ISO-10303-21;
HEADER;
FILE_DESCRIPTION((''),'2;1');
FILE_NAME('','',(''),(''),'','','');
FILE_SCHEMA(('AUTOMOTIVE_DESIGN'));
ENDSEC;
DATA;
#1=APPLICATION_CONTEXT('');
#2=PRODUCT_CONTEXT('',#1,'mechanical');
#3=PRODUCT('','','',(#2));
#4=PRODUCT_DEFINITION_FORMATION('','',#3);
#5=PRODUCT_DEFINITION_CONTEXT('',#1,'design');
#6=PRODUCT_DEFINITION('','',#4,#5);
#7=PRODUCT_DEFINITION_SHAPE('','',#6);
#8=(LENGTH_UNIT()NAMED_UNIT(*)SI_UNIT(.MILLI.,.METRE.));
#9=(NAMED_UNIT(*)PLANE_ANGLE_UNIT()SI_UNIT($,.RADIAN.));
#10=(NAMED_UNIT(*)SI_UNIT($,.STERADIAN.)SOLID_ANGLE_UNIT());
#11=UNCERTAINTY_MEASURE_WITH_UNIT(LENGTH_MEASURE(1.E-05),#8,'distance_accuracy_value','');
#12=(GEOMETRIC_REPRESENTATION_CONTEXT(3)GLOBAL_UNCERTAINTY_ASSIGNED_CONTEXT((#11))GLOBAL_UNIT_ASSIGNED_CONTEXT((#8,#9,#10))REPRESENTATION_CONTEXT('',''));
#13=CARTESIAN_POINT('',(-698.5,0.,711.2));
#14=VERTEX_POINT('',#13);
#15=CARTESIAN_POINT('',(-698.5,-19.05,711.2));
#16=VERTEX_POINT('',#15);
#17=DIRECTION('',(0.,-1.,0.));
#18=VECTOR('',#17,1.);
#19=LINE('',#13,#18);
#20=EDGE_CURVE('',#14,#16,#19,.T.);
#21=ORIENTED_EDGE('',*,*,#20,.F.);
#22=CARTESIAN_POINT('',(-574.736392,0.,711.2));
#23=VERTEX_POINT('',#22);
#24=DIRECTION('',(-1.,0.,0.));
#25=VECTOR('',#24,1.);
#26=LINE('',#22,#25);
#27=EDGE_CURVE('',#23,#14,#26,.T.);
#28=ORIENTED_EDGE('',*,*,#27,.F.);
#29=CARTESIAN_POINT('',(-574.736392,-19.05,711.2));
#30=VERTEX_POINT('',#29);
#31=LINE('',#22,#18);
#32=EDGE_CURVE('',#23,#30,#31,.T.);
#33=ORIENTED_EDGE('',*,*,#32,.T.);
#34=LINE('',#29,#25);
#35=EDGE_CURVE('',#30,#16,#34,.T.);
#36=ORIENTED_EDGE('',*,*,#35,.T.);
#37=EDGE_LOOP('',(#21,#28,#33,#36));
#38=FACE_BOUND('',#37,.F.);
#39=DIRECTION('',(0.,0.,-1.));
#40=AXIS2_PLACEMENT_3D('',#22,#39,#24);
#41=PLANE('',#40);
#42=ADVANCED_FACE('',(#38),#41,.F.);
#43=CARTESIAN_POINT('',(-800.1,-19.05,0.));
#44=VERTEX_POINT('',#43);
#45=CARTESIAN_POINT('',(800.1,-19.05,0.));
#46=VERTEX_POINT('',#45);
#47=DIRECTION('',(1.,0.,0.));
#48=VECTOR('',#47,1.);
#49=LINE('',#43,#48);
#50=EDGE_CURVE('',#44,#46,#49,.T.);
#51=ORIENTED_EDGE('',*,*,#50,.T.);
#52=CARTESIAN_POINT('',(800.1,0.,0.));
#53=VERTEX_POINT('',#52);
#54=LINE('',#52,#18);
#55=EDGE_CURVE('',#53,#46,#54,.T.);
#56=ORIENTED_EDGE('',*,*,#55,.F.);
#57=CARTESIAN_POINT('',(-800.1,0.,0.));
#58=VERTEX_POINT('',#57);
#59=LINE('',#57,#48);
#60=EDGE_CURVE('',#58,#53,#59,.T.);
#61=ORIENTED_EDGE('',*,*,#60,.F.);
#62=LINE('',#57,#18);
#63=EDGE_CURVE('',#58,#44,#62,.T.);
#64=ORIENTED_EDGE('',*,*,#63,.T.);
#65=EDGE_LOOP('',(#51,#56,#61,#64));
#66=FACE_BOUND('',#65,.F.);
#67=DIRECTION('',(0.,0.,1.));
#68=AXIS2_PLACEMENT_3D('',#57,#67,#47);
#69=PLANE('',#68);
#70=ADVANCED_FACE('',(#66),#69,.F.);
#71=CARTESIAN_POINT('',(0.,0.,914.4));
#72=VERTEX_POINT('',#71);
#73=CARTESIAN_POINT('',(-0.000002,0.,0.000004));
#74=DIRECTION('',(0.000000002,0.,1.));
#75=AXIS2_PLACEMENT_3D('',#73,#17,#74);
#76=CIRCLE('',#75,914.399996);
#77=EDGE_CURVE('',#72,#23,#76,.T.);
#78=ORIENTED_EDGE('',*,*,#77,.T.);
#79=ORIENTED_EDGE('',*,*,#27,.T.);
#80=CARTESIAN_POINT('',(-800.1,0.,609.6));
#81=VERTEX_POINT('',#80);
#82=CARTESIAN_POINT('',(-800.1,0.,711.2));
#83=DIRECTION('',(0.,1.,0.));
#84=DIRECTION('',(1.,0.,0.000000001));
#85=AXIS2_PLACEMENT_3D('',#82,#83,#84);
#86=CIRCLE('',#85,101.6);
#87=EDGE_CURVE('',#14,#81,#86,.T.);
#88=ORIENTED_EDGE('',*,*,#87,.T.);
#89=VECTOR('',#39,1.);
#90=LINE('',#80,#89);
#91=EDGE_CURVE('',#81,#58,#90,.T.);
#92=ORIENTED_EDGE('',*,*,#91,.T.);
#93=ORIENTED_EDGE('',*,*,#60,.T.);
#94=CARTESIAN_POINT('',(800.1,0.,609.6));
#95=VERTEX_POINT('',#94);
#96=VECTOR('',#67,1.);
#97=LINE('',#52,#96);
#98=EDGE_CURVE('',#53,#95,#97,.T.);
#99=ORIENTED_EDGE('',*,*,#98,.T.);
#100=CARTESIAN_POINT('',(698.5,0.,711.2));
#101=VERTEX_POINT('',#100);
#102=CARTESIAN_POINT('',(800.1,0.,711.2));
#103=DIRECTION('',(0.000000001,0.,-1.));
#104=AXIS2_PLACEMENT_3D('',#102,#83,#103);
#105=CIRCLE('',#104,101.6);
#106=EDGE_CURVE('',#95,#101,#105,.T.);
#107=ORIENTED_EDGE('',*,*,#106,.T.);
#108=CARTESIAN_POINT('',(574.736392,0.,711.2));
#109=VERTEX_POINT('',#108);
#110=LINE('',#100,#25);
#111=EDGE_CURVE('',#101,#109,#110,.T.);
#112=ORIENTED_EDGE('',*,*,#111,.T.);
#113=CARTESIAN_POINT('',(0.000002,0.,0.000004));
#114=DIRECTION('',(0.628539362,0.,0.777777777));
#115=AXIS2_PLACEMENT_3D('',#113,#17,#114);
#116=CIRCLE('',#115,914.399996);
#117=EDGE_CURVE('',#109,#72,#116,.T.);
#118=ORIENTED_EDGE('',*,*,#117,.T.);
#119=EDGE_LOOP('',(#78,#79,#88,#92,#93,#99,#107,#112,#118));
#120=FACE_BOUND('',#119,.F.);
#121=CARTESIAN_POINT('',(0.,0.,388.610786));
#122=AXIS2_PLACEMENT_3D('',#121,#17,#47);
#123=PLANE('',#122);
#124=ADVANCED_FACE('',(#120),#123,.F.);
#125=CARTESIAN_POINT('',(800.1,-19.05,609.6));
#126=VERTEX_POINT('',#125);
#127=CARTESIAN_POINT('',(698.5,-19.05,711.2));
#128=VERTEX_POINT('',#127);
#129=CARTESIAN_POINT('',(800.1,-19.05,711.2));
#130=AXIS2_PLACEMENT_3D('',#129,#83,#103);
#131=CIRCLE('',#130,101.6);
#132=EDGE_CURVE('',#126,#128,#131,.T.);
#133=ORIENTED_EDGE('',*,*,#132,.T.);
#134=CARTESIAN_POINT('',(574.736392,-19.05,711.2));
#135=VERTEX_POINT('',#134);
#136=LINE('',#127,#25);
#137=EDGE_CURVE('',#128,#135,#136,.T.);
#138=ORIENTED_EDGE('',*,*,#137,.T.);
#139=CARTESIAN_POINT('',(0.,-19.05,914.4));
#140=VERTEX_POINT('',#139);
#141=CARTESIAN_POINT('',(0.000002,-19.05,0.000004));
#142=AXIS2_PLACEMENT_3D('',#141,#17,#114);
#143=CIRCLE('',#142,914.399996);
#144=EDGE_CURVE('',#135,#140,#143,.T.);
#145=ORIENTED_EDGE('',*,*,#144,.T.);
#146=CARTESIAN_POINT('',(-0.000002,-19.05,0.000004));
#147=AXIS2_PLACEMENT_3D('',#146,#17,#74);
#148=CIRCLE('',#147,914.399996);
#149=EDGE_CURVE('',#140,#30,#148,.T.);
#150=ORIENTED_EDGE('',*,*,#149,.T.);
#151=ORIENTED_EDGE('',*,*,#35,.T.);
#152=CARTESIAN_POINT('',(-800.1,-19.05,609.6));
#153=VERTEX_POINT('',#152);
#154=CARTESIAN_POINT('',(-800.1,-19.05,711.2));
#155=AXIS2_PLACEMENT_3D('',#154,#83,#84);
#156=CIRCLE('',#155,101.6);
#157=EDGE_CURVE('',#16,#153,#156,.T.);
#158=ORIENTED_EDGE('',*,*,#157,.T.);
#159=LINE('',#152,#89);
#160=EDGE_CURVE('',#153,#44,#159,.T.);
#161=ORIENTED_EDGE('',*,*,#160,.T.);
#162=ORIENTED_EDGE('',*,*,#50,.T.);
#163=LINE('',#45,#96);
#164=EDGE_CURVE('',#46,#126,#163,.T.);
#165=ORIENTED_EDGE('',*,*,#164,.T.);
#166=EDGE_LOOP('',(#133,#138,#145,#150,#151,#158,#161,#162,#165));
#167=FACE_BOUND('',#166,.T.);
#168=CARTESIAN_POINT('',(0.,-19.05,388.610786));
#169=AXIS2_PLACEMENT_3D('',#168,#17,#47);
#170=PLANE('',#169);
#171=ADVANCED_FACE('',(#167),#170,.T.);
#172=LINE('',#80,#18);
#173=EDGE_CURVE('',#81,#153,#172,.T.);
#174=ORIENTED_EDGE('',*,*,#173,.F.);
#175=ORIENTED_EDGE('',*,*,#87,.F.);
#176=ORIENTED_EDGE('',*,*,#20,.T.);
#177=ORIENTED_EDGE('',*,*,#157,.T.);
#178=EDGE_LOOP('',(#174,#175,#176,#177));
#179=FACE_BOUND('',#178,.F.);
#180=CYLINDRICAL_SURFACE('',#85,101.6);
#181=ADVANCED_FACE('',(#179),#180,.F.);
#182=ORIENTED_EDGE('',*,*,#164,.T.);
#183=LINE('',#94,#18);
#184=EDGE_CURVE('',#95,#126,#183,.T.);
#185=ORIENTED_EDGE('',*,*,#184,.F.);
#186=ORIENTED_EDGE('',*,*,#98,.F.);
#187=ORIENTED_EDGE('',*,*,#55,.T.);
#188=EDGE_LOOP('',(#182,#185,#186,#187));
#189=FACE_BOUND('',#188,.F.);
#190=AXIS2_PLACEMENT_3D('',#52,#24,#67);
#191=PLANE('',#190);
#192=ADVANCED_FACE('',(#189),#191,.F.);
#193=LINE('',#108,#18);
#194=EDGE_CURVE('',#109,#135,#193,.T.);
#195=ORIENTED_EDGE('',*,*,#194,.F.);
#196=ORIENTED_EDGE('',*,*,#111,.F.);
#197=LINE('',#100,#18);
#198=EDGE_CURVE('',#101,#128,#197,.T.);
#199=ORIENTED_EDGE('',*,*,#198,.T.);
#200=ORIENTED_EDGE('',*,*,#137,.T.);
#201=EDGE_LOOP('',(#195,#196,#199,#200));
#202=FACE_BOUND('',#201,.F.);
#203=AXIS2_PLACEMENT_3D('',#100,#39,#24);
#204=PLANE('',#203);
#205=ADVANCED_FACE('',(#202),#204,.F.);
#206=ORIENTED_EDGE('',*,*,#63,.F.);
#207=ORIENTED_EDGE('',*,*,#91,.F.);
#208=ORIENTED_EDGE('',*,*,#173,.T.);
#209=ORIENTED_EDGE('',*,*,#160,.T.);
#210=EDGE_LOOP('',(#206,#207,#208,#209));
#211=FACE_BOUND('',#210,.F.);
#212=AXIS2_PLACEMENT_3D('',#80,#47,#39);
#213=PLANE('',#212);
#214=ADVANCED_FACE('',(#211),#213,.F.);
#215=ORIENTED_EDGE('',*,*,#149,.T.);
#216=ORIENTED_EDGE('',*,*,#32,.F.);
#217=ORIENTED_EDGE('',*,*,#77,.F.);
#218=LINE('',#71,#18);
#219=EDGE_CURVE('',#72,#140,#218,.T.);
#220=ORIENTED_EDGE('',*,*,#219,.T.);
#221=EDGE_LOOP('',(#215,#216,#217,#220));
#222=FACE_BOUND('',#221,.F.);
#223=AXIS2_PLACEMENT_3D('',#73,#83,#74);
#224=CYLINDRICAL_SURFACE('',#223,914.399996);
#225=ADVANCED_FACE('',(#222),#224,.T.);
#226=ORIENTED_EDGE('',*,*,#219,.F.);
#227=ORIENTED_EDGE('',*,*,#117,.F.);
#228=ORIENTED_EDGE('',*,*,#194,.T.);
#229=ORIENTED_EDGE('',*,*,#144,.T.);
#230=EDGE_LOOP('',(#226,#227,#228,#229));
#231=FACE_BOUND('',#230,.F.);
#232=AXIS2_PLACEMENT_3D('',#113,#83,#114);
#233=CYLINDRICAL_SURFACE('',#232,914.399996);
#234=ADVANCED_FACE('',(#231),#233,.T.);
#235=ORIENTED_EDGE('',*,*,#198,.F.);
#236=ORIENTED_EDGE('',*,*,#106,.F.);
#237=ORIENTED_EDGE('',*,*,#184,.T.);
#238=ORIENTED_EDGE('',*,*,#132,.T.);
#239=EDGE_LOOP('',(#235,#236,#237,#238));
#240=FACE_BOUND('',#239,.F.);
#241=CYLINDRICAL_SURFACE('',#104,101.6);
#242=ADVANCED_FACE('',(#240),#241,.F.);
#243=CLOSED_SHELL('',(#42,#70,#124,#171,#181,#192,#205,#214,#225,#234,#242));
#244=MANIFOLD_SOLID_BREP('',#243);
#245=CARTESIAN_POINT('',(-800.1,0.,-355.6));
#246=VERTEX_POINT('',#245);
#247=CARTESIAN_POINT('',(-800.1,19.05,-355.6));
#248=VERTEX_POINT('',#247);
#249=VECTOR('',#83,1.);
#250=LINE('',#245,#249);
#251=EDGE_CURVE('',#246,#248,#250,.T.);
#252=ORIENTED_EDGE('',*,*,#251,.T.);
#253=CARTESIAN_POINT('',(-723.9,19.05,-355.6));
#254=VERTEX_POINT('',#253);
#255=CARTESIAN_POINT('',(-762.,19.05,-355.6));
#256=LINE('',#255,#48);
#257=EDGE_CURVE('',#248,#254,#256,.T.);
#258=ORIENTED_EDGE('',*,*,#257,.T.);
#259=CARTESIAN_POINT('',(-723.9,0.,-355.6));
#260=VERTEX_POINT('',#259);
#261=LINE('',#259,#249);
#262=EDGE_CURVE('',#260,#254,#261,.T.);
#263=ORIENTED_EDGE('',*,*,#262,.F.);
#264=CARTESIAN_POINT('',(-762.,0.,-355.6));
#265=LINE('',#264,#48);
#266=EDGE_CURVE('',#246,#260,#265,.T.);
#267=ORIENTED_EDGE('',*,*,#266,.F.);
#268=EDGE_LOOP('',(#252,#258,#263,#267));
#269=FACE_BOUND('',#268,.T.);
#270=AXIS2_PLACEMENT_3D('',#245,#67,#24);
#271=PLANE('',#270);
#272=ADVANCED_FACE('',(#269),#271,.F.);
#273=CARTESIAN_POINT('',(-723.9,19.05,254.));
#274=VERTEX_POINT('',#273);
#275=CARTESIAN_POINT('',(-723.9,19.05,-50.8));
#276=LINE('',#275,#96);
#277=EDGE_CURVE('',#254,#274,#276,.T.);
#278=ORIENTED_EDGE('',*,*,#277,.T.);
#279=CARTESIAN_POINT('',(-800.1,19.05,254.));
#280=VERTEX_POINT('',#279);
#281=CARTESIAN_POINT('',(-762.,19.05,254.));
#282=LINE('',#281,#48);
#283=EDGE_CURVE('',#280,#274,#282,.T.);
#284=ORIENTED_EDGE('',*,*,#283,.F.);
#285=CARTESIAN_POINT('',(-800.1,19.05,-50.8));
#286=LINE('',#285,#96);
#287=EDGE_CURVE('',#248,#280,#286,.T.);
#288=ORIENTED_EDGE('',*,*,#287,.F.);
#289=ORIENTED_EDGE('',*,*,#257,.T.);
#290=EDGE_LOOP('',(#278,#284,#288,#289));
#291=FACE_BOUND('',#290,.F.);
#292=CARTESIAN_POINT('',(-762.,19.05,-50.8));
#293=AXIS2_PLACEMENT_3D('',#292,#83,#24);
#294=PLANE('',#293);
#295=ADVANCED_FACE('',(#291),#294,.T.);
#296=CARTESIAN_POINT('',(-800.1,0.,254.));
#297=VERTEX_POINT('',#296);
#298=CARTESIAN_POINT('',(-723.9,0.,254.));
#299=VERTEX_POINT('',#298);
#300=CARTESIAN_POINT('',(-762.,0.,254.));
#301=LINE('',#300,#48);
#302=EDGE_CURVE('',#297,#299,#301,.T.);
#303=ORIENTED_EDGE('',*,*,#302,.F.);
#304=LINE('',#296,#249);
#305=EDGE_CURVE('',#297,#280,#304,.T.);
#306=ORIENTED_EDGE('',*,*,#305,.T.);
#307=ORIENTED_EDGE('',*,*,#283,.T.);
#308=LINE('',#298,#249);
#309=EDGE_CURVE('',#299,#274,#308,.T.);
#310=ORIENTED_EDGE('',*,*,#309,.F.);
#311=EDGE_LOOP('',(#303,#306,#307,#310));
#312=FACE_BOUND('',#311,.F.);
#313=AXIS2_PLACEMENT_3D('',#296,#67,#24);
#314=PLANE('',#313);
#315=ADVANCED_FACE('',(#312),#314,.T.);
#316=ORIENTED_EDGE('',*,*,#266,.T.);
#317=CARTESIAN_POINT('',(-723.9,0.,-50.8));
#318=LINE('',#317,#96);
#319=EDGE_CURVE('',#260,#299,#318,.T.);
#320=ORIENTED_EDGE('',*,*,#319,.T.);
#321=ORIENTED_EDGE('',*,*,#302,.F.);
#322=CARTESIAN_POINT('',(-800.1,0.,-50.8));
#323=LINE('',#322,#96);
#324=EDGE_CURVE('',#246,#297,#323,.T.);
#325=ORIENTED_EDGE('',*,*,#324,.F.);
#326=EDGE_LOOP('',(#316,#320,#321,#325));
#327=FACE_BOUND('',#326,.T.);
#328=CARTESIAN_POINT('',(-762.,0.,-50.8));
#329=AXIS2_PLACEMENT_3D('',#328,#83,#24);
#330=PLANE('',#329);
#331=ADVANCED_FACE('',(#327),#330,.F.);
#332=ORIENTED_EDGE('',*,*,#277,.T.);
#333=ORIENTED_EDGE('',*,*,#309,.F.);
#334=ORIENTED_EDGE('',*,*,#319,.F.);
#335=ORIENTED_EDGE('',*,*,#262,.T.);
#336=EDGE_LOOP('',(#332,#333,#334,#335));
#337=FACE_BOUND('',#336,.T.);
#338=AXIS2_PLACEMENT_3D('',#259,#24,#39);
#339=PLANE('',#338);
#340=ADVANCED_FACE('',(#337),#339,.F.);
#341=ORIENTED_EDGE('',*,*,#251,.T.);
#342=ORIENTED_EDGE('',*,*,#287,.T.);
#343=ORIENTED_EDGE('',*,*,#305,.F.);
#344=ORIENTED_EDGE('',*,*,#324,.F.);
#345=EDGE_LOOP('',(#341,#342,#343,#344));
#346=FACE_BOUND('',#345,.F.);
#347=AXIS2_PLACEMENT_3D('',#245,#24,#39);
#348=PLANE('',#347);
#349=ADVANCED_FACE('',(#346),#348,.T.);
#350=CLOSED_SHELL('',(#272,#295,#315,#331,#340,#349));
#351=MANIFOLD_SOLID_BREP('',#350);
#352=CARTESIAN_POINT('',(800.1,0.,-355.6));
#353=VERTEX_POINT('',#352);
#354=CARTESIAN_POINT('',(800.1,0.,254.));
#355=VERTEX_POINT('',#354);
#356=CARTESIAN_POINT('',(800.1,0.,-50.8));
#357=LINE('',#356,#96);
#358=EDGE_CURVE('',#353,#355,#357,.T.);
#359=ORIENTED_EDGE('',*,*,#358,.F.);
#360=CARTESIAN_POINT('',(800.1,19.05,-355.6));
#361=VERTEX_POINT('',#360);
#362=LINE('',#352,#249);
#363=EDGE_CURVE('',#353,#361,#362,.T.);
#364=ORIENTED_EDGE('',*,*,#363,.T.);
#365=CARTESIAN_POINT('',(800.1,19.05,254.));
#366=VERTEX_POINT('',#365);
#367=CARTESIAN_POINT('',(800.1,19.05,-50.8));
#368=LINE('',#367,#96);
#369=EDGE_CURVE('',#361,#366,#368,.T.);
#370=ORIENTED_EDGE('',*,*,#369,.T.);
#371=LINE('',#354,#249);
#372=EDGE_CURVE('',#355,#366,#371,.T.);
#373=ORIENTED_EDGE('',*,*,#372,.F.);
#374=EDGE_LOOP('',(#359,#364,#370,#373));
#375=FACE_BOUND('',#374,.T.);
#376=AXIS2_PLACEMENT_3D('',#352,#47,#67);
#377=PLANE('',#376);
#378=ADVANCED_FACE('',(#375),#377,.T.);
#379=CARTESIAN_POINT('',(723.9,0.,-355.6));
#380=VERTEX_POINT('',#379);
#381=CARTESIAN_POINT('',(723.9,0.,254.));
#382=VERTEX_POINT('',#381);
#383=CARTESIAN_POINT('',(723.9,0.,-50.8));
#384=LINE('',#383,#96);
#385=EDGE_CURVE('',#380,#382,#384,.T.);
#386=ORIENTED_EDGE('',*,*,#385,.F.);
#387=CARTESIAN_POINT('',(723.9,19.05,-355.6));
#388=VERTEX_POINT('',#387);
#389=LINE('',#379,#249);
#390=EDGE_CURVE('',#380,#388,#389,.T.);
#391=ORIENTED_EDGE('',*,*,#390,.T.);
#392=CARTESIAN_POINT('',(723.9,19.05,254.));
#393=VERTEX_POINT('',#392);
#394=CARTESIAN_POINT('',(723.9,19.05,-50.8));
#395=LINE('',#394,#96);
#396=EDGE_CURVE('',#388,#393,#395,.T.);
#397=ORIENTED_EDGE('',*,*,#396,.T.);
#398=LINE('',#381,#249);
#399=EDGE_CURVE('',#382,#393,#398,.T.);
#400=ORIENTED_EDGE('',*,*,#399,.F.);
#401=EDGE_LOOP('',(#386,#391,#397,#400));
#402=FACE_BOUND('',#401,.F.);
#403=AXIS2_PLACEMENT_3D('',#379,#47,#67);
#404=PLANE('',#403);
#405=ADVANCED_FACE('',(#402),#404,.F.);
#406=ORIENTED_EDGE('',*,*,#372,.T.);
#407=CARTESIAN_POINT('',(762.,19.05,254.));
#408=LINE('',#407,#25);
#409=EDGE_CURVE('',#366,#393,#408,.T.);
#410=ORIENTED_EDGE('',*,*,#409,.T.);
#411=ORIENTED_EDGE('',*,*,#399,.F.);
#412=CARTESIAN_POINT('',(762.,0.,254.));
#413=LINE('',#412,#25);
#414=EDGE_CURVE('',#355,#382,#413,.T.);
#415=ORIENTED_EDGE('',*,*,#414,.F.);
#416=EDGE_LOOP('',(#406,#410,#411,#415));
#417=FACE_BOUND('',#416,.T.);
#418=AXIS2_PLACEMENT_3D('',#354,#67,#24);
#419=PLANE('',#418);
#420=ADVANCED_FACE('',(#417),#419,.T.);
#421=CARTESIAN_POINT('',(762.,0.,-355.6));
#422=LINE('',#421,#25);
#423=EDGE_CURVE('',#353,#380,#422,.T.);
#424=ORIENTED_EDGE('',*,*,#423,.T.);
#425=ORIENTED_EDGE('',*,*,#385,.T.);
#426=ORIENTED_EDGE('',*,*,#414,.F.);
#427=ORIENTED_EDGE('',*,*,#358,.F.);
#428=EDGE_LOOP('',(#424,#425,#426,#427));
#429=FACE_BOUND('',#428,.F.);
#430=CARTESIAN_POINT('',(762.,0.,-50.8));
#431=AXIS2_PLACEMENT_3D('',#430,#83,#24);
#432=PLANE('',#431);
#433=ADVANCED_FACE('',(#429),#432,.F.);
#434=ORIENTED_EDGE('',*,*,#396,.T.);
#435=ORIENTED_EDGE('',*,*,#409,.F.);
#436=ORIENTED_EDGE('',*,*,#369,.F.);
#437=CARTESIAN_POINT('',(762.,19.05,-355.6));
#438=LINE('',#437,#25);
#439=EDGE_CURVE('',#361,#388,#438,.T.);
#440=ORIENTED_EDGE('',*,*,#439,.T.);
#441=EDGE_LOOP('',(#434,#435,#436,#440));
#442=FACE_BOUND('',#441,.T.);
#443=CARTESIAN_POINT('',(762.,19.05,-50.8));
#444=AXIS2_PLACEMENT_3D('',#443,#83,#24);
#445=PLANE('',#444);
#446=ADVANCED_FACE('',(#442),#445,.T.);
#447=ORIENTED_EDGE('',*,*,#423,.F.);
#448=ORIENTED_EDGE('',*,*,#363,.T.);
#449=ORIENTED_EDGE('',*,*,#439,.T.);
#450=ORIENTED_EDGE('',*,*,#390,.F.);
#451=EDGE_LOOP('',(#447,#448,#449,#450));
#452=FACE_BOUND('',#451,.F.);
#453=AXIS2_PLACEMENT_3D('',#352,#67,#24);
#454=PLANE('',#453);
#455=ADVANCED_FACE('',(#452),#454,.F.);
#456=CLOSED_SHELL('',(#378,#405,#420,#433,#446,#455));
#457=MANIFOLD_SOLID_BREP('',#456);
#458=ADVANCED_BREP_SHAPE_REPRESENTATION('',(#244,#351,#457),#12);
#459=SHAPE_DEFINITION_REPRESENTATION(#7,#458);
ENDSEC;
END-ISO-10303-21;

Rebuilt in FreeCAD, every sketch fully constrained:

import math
import FreeCAD as App
import Part
import Sketcher
Q = App.Units.Quantity


def add_polygon(sketch, points):
    """Adds a closed chain of lines whose ends are joined by coincident constraints."""
    first, n = sketch.GeometryCount, len(points)
    for a, b in zip(points, points[1:] + points[:1]):
        sketch.addGeometry(Part.LineSegment(App.Vector(*a, 0), App.Vector(*b, 0)), False)
    for i in range(n):
        sketch.addConstraint(Sketcher.Constraint("Coincident", first + i, 2, first + (i + 1) % n, 1))

doc = App.newDocument("Part")
body = doc.addObject("PartDesign::Body", "Body")

sketch1 = body.newObject("Sketcher::SketchObject", "Sketch")
sketch1.AttachmentSupport = (doc.getObject("XZ_Plane"), [""])
sketch1.MapMode = "FlatFace"
sketch1.addGeometry([
    Part.LineSegment(App.Vector(-800, 0, 0), App.Vector(800, 0, 0)),
    Part.LineSegment(App.Vector(800, 0, 0), App.Vector(800, 610, 0)),
    Part.ArcOfCircle(Part.Circle(App.Vector(800, 711, 0), App.Vector(0, 0, 1), 102), math.radians(180), math.radians(270)),
    Part.LineSegment(App.Vector(698, 711, 0), App.Vector(575, 711, 0)),
    Part.ArcOfCircle(Part.Circle(App.Vector(0, 0, 0), App.Vector(0, 0, 1), 914), math.radians(51), math.radians(90)),
    Part.ArcOfCircle(Part.Circle(App.Vector(0, 0, 0), App.Vector(0, 0, 1), 914), math.radians(90), math.radians(129)),
    Part.LineSegment(App.Vector(-575, 711, 0), App.Vector(-698, 711, 0)),
    Part.ArcOfCircle(Part.Circle(App.Vector(-800, 711, 0), App.Vector(0, 0, 1), 102), math.radians(-90), math.radians(0)),
    Part.LineSegment(App.Vector(-800, 610, 0), App.Vector(-800, 0, 0)),
], False)
sketch1.addConstraint([
    Sketcher.Constraint("Coincident", 0, 2, 1, 1),
    Sketcher.Constraint("Coincident", 1, 2, 2, 2),
    Sketcher.Constraint("Coincident", 2, 1, 3, 1),
    Sketcher.Constraint("Coincident", 3, 2, 4, 1),
    Sketcher.Constraint("Coincident", 4, 2, 5, 1),
    Sketcher.Constraint("Coincident", 5, 2, 6, 1),
    Sketcher.Constraint("Coincident", 6, 2, 7, 2),
    Sketcher.Constraint("Coincident", 7, 1, 8, 1),
    Sketcher.Constraint("Coincident", 8, 2, 0, 1),
    Sketcher.Constraint("Horizontal", 0),
    Sketcher.Constraint("Vertical", 1),
    Sketcher.Constraint("Horizontal", 3),
    Sketcher.Constraint("Horizontal", 6),
    Sketcher.Constraint("Vertical", 8),
    Sketcher.Constraint("Coincident", 4, 3, -1, 1),
    Sketcher.Constraint("Coincident", 5, 3, -1, 1),
    Sketcher.Constraint("Equal", 2, 7),
    Sketcher.Constraint("Symmetric", 0, 2, 8, 2, -1, 1),
    Sketcher.Constraint("Symmetric", 2, 3, 7, 3, -2),
    Sketcher.Constraint("PointOnObject", 4, 2, -2),
    Sketcher.Constraint("Horizontal", 7, 3, 2, 1),
    Sketcher.Constraint("Vertical", 2, 3, 0, 2),
    Sketcher.Constraint("Equal", 3, 6),
    Sketcher.Constraint("Radius", 2, Q("4 in")),
    Sketcher.Constraint("Radius", 4, Q("35.9999998 in")),
    Sketcher.Constraint("DistanceX", 0, 1, 0, 2, Q("63 in")),
    Sketcher.Constraint("DistanceY", 1, 1, 1, 2, Q("24 in")),
])
pad1 = body.newObject("PartDesign::Pad", "Pad")
pad1.Profile = sketch1
pad1.Length = Q("0.75 in")
body2 = doc.addObject("PartDesign::Body", "Body001")

sketch2 = body2.newObject("Sketcher::SketchObject", "Sketch001")
sketch2.AttachmentSupport = (doc.getObject("XZ_Plane001"), [""])
sketch2.MapMode = "FlatFace"
add_polygon(sketch2, [(800, 254), (800, -356), (724, -356), (724, 254)])
sketch2.addConstraint([
    Sketcher.Constraint("Vertical", 0),
    Sketcher.Constraint("Horizontal", 1),
    Sketcher.Constraint("Vertical", 2),
    Sketcher.Constraint("Horizontal", 3),
    Sketcher.Constraint("DistanceX", 1, 2, 1, 1, Q("3 in")),
    Sketcher.Constraint("DistanceY", 0, 2, 0, 1, Q("24 in")),
    Sketcher.Constraint("DistanceY", 0, 2, -1, 1, Q("14 in")),
    Sketcher.Constraint("DistanceX", -1, 1, 0, 2, Q("31.5 in")),
])
pad2 = body2.newObject("PartDesign::Pad", "Pad001")
pad2.Profile = sketch2
pad2.Length = Q("0.75 in")
pad2.Reversed = True
body3 = doc.addObject("PartDesign::Body", "Body002")
doc.recompute()

mirroring = doc.addObject("Part::Mirroring", "Mirroring")
mirroring.Source = body2
mirroring.Base = App.Vector(0, 0, 0)
mirroring.Normal = App.Vector(1, 0, 0)
body3.BaseFeature = mirroring
doc.recompute()
mirroring.Visibility = False

doc.recompute()
